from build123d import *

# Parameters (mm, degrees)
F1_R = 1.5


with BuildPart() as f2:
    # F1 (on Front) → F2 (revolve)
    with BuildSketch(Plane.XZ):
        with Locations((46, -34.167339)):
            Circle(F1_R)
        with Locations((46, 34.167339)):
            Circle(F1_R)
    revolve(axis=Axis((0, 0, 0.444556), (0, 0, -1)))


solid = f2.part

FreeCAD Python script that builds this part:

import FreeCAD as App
import Part
import Sketcher
from FreeCAD import Vector
Q = App.Units.Quantity

doc = App.newDocument("Part")
body = doc.addObject("PartDesign::Body", "Body")
body.AllowCompound = True

# Sketch on XZ plane
sketch1 = doc.addObject("Sketcher::SketchObject", "Sketch")
body.addObject(sketch1)
sketch1.AttachmentSupport = (doc.XZ_Plane, [""])
sketch1.MapMode = "FlatFace"
sketch1.addGeometry(Part.Circle(Vector(46, -34.2, 0), Vector(0, 0, 1), 1.5), False)
sketch1.addGeometry(Part.Circle(Vector(46, 34.2, 0), Vector(0, 0, 1), 1.5), False)
sketch1.addConstraint(Sketcher.Constraint("Equal", 0, 1))
sketch1.addConstraint(Sketcher.Constraint("Symmetric", 0, 3, 1, 3, -1))
sketch1.addConstraint(Sketcher.Constraint("Diameter", 0, Q("3 mm")))
sketch1.addConstraint(Sketcher.Constraint("DistanceX", -1, 1, 0, 3, Q("46 mm")))
sketch1.addConstraint(Sketcher.Constraint("DistanceY", 0, 3, -1, 1, Q("34.167339 mm")))
revolution = doc.addObject("PartDesign::Revolution", "Revolution")
body.addObject(revolution)
revolution.Profile = sketch1
revolution.ReferenceAxis = (sketch1, ["V_Axis"])
revolution.Angle = 360

doc.recompute()
